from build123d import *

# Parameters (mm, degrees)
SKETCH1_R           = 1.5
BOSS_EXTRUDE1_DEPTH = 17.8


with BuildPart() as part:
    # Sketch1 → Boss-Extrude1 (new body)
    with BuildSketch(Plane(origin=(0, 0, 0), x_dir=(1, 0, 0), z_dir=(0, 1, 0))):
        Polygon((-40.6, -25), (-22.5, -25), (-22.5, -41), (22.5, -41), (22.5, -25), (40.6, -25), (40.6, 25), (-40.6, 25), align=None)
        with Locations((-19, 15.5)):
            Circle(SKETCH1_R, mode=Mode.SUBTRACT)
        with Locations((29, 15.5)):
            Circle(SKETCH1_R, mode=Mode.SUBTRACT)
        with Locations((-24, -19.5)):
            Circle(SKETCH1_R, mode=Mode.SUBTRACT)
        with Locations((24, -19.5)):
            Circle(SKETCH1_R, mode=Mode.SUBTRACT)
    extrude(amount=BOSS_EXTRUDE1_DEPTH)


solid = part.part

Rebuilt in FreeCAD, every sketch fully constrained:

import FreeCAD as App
import Part
import Sketcher
Q = App.Units.Quantity

doc = App.newDocument("Part")
body = doc.addObject("PartDesign::Body", "Body")

sketch1 = body.newObject("Sketcher::SketchObject", "Sketch")
sketch1.AttachmentSupport = (doc.getObject("XZ_Plane"), [""])
sketch1.MapMode = "FlatFace"
sketch1.addGeometry([
    Part.LineSegment(App.Vector(-40.6, 25, 0), App.Vector(-22.5, 25, 0)),
    Part.LineSegment(App.Vector(-22.5, 25, 0), App.Vector(-22.5, 41, 0)),
    Part.LineSegment(App.Vector(-22.5, 41, 0), App.Vector(22.5, 41, 0)),
    Part.LineSegment(App.Vector(22.5, 41, 0), App.Vector(22.5, 25, 0)),
    Part.LineSegment(App.Vector(22.5, 25, 0), App.Vector(40.6, 25, 0)),
    Part.LineSegment(App.Vector(40.6, 25, 0), App.Vector(40.6, -25, 0)),
    Part.LineSegment(App.Vector(40.6, -25, 0), App.Vector(-40.6, -25, 0)),
    Part.LineSegment(App.Vector(-40.6, -25, 0), App.Vector(-40.6, 25, 0)),
    Part.Circle(App.Vector(-24, 19.5, 0), App.Vector(0, 0, 1), 1.5),
    Part.Circle(App.Vector(24, 19.5, 0), App.Vector(0, 0, 1), 1.5),
    Part.Circle(App.Vector(-19, -15.5, 0), App.Vector(0, 0, 1), 1.5),
    Part.Circle(App.Vector(29, -15.5, 0), App.Vector(0, 0, 1), 1.5),
], False)
sketch1.addConstraint([
    Sketcher.Constraint("Coincident", 0, 2, 1, 1),
    Sketcher.Constraint("Coincident", 1, 2, 2, 1),
    Sketcher.Constraint("Coincident", 2, 2, 3, 1),
    Sketcher.Constraint("Coincident", 3, 2, 4, 1),
    Sketcher.Constraint("Coincident", 4, 2, 5, 1),
    Sketcher.Constraint("Coincident", 5, 2, 6, 1),
    Sketcher.Constraint("Coincident", 6, 2, 7, 1),
    Sketcher.Constraint("Coincident", 7, 2, 0, 1),
    Sketcher.Constraint("Horizontal", 0),
    Sketcher.Constraint("Vertical", 1),
    Sketcher.Constraint("Horizontal", 2),
    Sketcher.Constraint("Vertical", 3),
    Sketcher.Constraint("Horizontal", 4),
    Sketcher.Constraint("Vertical", 5),
    Sketcher.Constraint("Horizontal", 6),
    Sketcher.Constraint("Vertical", 7),
    Sketcher.Constraint("Equal", 8, 9),
    Sketcher.Constraint("Equal", 9, 10),
    Sketcher.Constraint("Equal", 10, 11),
    Sketcher.Constraint("Symmetric", 4, 2, 6, 2, -1, 1),
    Sketcher.Constraint("Symmetric", 8, 3, 9, 3, -2),
    Sketcher.Constraint("Symmetric", 0, 2, 3, 2, -2),
    Sketcher.Constraint("Horizontal", 10, 3, 11, 3),
    Sketcher.Constraint("Diameter", 8, Q("3 mm")),
    Sketcher.Constraint("DistanceX", 2, 1, 2, 2, Q("45 mm")),
    Sketcher.Constraint("DistanceY", 1, 1, 1, 2, Q("16 mm")),
    Sketcher.Constraint("DistanceY", 5, 2, 5, 1, Q("50 mm")),
    Sketcher.Constraint("DistanceX", 0, 1, 0, 2, Q("18.1 mm")),
    Sketcher.Constraint("DistanceX", 8, 3, -1, 1, Q("24 mm")),
    Sketcher.Constraint("DistanceX", 10, 3, -1, 1, Q("19 mm")),
    Sketcher.Constraint("DistanceX", -1, 1, 11, 3, Q("29 mm")),
    Sketcher.Constraint("DistanceY", 10, 3, 8, 3, Q("35 mm")),
    Sketcher.Constraint("DistanceY", -1, 1, 8, 3, Q("19.5 mm")),
])
pad1 = body.newObject("PartDesign::Pad", "Pad")
pad1.Profile = sketch1
pad1.Length = 17.8
pad1.Reversed = True

doc.recompute()
